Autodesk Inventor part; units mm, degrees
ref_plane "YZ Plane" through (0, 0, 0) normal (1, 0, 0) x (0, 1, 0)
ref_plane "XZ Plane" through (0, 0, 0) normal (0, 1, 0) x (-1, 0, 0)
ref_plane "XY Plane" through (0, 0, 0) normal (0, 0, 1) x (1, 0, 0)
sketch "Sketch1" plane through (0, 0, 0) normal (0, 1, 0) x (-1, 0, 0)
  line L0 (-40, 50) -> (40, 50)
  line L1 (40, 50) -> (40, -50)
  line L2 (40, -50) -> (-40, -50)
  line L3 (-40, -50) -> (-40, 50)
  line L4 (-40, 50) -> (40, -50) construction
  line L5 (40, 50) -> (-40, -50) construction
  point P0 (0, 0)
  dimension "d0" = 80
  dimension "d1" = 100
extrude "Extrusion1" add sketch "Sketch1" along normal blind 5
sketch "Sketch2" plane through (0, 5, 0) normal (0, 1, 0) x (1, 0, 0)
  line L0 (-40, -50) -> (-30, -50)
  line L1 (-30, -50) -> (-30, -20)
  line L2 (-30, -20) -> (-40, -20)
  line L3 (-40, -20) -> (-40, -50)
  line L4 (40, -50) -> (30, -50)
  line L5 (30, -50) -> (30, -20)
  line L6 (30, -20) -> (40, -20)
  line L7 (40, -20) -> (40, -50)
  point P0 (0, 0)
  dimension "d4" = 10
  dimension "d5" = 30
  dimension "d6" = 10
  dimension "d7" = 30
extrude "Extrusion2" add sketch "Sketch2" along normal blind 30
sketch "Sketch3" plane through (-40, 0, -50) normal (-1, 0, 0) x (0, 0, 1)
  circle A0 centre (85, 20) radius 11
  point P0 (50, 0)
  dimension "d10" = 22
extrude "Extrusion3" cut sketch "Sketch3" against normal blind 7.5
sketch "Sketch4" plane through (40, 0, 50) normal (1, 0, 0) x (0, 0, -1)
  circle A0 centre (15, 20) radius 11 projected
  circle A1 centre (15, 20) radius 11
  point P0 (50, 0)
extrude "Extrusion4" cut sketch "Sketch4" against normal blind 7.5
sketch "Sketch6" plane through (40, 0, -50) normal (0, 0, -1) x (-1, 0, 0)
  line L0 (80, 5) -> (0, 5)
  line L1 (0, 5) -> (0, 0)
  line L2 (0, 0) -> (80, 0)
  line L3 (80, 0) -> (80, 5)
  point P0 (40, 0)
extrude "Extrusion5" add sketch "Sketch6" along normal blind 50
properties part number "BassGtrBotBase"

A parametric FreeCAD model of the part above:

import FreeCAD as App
import Part
import Sketcher
from FreeCAD import Vector

doc = App.newDocument("Part")
params = doc.addObject("Spreadsheet::Sheet", "Params")
for row, (alias, value) in enumerate([
    ("sketch1_width", "80 mm"),
    ("sketch1_height", "100 mm"),
    ("pad1_length", "5 mm"),
    ("sketch2_width", "10 mm"),
    ("sketch2_height", "30 mm"),
    ("pad2_length", "30 mm"),
    ("sketch3_diameter", "22 mm"),
    ("pocket1_length", "7.5 mm"),
    ("sketch4_diameter", "22 mm"),
    ("pocket2_length", "7.5 mm"),
    ("sketch5_width", "80 mm"),
    ("sketch5_height", "5 mm"),
    ("pad3_length", "50 mm"),
], start=1):
    params.set(f"A{row}", alias)
    params.set(f"B{row}", "=" + value)
    params.setAlias(f"B{row}", alias)

body = doc.addObject("PartDesign::Body", "Body")

sketch1 = body.newObject("Sketcher::SketchObject", "Sketch")
sketch1.AttachmentSupport = (doc.getObject("XZ_Plane"), [""])
sketch1.MapMode = "FlatFace"
sketch1.addGeometry([
    Part.LineSegment(Vector(-40, 50, 0), Vector(40, 50, 0)),
    Part.LineSegment(Vector(40, 50, 0), Vector(40, -50, 0)),
    Part.LineSegment(Vector(40, -50, 0), Vector(-40, -50, 0)),
    Part.LineSegment(Vector(-40, -50, 0), Vector(-40, 50, 0)),
], False)
sketch1.addConstraint([
    Sketcher.Constraint("Coincident", 0, 2, 1, 1),
    Sketcher.Constraint("Coincident", 1, 2, 2, 1),
    Sketcher.Constraint("Coincident", 2, 2, 3, 1),
    Sketcher.Constraint("Coincident", 3, 2, 0, 1),
    Sketcher.Constraint("Horizontal", 0),
    Sketcher.Constraint("Vertical", 1),
    Sketcher.Constraint("Horizontal", 2),
    Sketcher.Constraint("Vertical", 3),
    Sketcher.Constraint("Symmetric", 0, 2, 2, 2, -1, 1),
    Sketcher.Constraint("DistanceX", 0, 1, 0, 2, 80.0),
    Sketcher.Constraint("DistanceY", 1, 2, 1, 1, 100.0),
])
sketch1.setExpression("Constraints[9]", "Params.sketch1_width")
sketch1.setExpression("Constraints[10]", "Params.sketch1_height")
pad1 = body.newObject("PartDesign::Pad", "Pad")
pad1.Profile = sketch1
pad1.setExpression("Length", "Params.pad1_length")
pad1.Reversed = True

sketch2 = body.newObject("Sketcher::SketchObject", "Sketch001")
sketch2.AttachmentSupport = (doc.getObject("XZ_Plane"), [""])
sketch2.MapMode = "FlatFace"
sketch2.AttachmentOffset = App.Placement(Vector(0, 0, -5), App.Rotation())
sketch2.addGeometry([
    Part.LineSegment(Vector(-40, 20, 0), Vector(-40, 50, 0)),
    Part.LineSegment(Vector(-40, 50, 0), Vector(-30, 50, 0)),
    Part.LineSegment(Vector(-30, 50, 0), Vector(-30, 20, 0)),
    Part.LineSegment(Vector(-30, 20, 0), Vector(-40, 20, 0)),
    Part.LineSegment(Vector(30, 50, 0), Vector(40, 50, 0)),
    Part.LineSegment(Vector(40, 50, 0), Vector(40, 20, 0)),
    Part.LineSegment(Vector(40, 20, 0), Vector(30, 20, 0)),
    Part.LineSegment(Vector(30, 20, 0), Vector(30, 50, 0)),
], False)
sketch2.addConstraint([
    Sketcher.Constraint("Coincident", 0, 2, 1, 1),
    Sketcher.Constraint("Coincident", 1, 2, 2, 1),
    Sketcher.Constraint("Coincident", 2, 2, 3, 1),
    Sketcher.Constraint("Coincident", 3, 2, 0, 1),
    Sketcher.Constraint("Coincident", 4, 2, 5, 1),
    Sketcher.Constraint("Coincident", 5, 2, 6, 1),
    Sketcher.Constraint("Coincident", 6, 2, 7, 1),
    Sketcher.Constraint("Coincident", 7, 2, 4, 1),
    Sketcher.Constraint("Vertical", 0),
    Sketcher.Constraint("Horizontal", 1),
    Sketcher.Constraint("Vertical", 2),
    Sketcher.Constraint("Horizontal", 3),
    Sketcher.Constraint("Horizontal", 4),
    Sketcher.Constraint("Vertical", 5),
    Sketcher.Constraint("Horizontal", 6),
    Sketcher.Constraint("Vertical", 7),
    Sketcher.Constraint("Symmetric", 0, 2, 4, 2, -2),
    Sketcher.Constraint("Symmetric", 2, 2, 6, 2, -2),
    Sketcher.Constraint("DistanceX", 1, 1, 1, 2, 10.0),
    Sketcher.Constraint("DistanceY", 0, 1, 0, 2, 30.0),
    Sketcher.Constraint("DistanceX", 1, 2, -1, 1, 30.0),
    Sketcher.Constraint("DistanceY", -1, 1, 0, 2, 50.0),
])
sketch2.setExpression("Constraints[18]", "Params.sketch2_width")
sketch2.setExpression("Constraints[19]", "Params.sketch2_height")
pad2 = body.newObject("PartDesign::Pad", "Pad001")
pad2.Profile = sketch2
pad2.setExpression("Length", "Params.pad2_length")
pad2.Reversed = True

sketch3 = body.newObject("Sketcher::SketchObject", "Sketch002")
sketch3.AttachmentSupport = (doc.getObject("YZ_Plane"), [""])
sketch3.MapMode = "FlatFace"
sketch3.AttachmentOffset = App.Placement(Vector(0, 0, -40), App.Rotation())
sketch3.addGeometry(Part.Circle(Vector(20, 35, 0), Vector(0, 0, 1), 11), False)
sketch3.addConstraint([
    Sketcher.Constraint("Diameter", 0, 22.0),
    Sketcher.Constraint("DistanceX", -1, 1, 0, 3, 20.0),
    Sketcher.Constraint("DistanceY", -1, 1, 0, 3, 35.0),
])
sketch3.setExpression("Constraints[0]", "Params.sketch3_diameter")
pocket1 = body.newObject("PartDesign::Pocket", "Pocket")
pocket1.Profile = sketch3
pocket1.setExpression("Length", "Params.pocket1_length")
pocket1.Reversed = True

sketch4 = body.newObject("Sketcher::SketchObject", "Sketch003")
sketch4.AttachmentSupport = (doc.getObject("YZ_Plane"), [""])
sketch4.MapMode = "FlatFace"
sketch4.AttachmentOffset = App.Placement(Vector(0, 0, 40), App.Rotation())
sketch4.addGeometry(Part.Circle(Vector(20, 35, 0), Vector(0, 0, 1), 11), False)
sketch4.addConstraint([
    Sketcher.Constraint("Diameter", 0, 22.0),
    Sketcher.Constraint("DistanceX", -1, 1, 0, 3, 20.0),
    Sketcher.Constraint("DistanceY", -1, 1, 0, 3, 35.0),
])
sketch4.setExpression("Constraints[0]", "Params.sketch4_diameter")
pocket2 = body.newObject("PartDesign::Pocket", "Pocket001")
pocket2.Profile = sketch4
pocket2.setExpression("Length", "Params.pocket2_length")

sketch5 = body.newObject("Sketcher::SketchObject", "Sketch004")
sketch5.AttachmentSupport = (doc.getObject("XY_Plane"), [""])
sketch5.MapMode = "FlatFace"
sketch5.AttachmentOffset = App.Placement(Vector(0, 0, -50), App.Rotation())
sketch5.addGeometry([
    Part.LineSegment(Vector(-40, 0, 0), Vector(-40, 5, 0)),
    Part.LineSegment(Vector(-40, 5, 0), Vector(40, 5, 0)),
    Part.LineSegment(Vector(40, 5, 0), Vector(40, 0, 0)),
    Part.LineSegment(Vector(40, 0, 0), Vector(-40, 0, 0)),
], False)
sketch5.addConstraint([
    Sketcher.Constraint("Coincident", 0, 2, 1, 1),
    Sketcher.Constraint("Coincident", 1, 2, 2, 1),
    Sketcher.Constraint("Coincident", 2, 2, 3, 1),
    Sketcher.Constraint("Coincident", 3, 2, 0, 1),
    Sketcher.Constraint("Vertical", 0),
    Sketcher.Constraint("Horizontal", 1),
    Sketcher.Constraint("Vertical", 2),
    Sketcher.Constraint("Horizontal", 3),
    Sketcher.Constraint("Symmetric", 2, 2, 3, 2, -1, 1),
    Sketcher.Constraint("DistanceX", 1, 1, 1, 2, 80.0),
    Sketcher.Constraint("DistanceY", 0, 1, 0, 2, 5.0),
])
sketch5.setExpression("Constraints[9]", "Params.sketch5_width")
sketch5.setExpression("Constraints[10]", "Params.sketch5_height")
pad3 = body.newObject("PartDesign::Pad", "Pad002")
pad3.Profile = sketch5
pad3.setExpression("Length", "Params.pad3_length")
pad3.Reversed = True

doc.recompute()
